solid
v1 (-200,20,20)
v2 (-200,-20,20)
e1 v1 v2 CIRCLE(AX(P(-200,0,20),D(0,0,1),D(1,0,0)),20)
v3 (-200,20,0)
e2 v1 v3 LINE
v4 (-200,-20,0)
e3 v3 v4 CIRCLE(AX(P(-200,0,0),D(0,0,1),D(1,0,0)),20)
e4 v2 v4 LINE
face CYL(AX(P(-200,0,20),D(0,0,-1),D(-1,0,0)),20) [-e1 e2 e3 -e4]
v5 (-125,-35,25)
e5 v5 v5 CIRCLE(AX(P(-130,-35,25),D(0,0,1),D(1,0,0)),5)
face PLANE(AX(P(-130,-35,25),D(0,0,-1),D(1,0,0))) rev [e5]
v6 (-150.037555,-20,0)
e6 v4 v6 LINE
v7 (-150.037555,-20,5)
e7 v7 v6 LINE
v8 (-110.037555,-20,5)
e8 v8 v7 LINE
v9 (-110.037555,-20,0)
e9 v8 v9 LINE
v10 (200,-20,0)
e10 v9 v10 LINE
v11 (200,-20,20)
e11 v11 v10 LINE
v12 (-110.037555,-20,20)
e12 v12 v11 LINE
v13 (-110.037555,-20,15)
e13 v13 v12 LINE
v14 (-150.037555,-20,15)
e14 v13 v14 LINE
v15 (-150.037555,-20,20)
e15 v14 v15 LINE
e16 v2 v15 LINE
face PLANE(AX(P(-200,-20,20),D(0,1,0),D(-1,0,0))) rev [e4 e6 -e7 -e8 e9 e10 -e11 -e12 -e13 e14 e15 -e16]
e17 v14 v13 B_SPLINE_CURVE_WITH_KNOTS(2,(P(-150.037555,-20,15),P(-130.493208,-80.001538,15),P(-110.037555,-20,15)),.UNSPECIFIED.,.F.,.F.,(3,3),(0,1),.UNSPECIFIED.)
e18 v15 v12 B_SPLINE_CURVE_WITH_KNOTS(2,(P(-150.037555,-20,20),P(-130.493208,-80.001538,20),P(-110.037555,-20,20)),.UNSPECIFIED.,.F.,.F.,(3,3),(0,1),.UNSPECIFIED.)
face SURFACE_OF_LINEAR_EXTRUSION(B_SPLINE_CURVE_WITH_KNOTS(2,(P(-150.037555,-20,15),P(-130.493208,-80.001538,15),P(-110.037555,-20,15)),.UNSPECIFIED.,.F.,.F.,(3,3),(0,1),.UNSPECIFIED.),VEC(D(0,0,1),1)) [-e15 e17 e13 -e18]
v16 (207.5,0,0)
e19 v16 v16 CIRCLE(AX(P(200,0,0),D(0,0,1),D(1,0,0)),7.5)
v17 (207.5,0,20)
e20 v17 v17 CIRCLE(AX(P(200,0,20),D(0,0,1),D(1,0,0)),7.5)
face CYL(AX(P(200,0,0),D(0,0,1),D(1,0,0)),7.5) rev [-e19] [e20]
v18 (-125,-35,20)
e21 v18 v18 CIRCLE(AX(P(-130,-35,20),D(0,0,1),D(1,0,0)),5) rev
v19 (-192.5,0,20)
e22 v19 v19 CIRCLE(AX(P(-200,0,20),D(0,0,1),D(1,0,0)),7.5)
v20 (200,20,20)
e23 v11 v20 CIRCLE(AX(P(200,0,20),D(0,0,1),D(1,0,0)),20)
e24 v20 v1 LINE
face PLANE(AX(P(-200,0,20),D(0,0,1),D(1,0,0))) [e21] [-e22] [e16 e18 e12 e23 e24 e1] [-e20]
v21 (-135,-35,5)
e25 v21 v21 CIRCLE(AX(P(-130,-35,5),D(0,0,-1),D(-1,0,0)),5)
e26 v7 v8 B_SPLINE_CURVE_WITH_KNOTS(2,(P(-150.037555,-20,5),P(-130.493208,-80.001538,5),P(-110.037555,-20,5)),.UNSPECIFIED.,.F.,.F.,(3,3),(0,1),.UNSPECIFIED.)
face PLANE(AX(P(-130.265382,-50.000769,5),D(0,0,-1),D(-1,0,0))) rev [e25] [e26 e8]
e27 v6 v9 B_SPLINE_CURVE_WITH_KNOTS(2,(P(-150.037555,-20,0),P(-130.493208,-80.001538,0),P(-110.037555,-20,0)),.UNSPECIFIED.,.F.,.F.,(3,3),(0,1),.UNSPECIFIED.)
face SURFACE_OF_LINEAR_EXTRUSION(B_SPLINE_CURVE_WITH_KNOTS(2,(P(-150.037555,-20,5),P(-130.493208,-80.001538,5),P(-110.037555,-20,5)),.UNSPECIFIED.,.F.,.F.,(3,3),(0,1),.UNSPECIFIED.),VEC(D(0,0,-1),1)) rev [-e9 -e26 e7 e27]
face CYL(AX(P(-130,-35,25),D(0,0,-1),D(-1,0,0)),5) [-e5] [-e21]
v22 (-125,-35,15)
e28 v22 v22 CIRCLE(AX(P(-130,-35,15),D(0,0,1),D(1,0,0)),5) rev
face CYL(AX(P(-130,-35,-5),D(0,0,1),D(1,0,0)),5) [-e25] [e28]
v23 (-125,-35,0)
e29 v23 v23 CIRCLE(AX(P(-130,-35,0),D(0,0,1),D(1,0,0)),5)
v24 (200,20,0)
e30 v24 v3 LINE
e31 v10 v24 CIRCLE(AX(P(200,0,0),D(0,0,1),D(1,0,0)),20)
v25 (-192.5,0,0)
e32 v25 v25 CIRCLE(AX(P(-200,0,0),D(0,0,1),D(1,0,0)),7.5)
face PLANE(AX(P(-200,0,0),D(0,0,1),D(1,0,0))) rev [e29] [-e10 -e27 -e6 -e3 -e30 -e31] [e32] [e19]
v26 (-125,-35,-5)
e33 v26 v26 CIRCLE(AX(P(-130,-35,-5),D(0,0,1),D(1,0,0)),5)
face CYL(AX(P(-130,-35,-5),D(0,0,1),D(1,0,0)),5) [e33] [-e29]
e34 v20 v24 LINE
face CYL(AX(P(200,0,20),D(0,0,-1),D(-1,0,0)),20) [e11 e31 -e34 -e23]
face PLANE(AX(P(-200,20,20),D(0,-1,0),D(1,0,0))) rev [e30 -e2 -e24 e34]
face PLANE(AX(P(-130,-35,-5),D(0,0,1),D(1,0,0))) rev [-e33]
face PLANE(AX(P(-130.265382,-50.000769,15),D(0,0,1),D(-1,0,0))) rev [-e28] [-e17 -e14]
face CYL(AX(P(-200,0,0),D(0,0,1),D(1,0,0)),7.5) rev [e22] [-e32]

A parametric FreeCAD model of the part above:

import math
import FreeCAD as App
import Part
import Sketcher
Q = App.Units.Quantity

doc = App.newDocument("Part")
body = doc.addObject("PartDesign::Body", "Body")

# Sketch on XY plane
sketch1 = doc.addObject("Sketcher::SketchObject", "Sketch")
body.addObject(sketch1)
sketch1.AttachmentSupport = (doc.XY_Plane, [""])
sketch1.MapMode = "FlatFace"
sketch1.addGeometry([
    Part.LineSegment(App.Vector(200, 20, 0), App.Vector(-200, 20, 0)),
    Part.ArcOfCircle(Part.Circle(App.Vector(-200, 0, 0), App.Vector(0, 0, 1), 20), math.radians(90), math.radians(270)),
    Part.LineSegment(App.Vector(-200, -20, 0), App.Vector(200, -20, 0)),
    Part.ArcOfCircle(Part.Circle(App.Vector(200, 0, 0), App.Vector(0, 0, 1), 20), math.radians(-90), math.radians(90)),
], False)
sketch1.addConstraint([
    Sketcher.Constraint("Tangent", 0, 2, 1, 1),
    Sketcher.Constraint("Tangent", 1, 2, 2, 1),
    Sketcher.Constraint("Tangent", 2, 2, 3, 1),
    Sketcher.Constraint("Tangent", 3, 2, 0, 1),
    Sketcher.Constraint("Horizontal", 0),
    Sketcher.Constraint("Horizontal", 2),
    Sketcher.Constraint("Symmetric", 1, 3, 3, 3, -1, 1),
    Sketcher.Constraint("Radius", 1, Q("20 mm")),
    Sketcher.Constraint("DistanceX", 0, 2, 0, 1, Q("400 mm")),
])
pad1 = doc.addObject("PartDesign::Pad", "Pad")
body.addObject(pad1)
pad1.Profile = sketch1
pad1.Length = 20

# Sketch on XY plane
sketch2 = doc.addObject("Sketcher::SketchObject", "Sketch001")
body.addObject(sketch2)
sketch2.AttachmentSupport = (doc.XY_Plane, [""])
sketch2.MapMode = "FlatFace"
sketch2.AttachmentOffset = App.Placement(App.Vector(0, 0, 20), App.Rotation())
sketch2.addGeometry([
    Part.Circle(App.Vector(-200, 0, 0), App.Vector(0, 0, 1), 8),
    Part.Circle(App.Vector(200, 0, 0), App.Vector(0, 0, 1), 8),
], False)
sketch2.addConstraint([
    Sketcher.Constraint("Equal", 0, 1),
    Sketcher.Constraint("Symmetric", 0, 3, 1, 3, -1, 1),
    Sketcher.Constraint("PointOnObject", 0, 3, -1),
    Sketcher.Constraint("Diameter", 0, Q("15 mm")),
    Sketcher.Constraint("DistanceX", 0, 3, -1, 1, Q("200 mm")),
])
pocket1 = doc.addObject("PartDesign::Pocket", "Pocket")
body.addObject(pocket1)
pocket1.Profile = sketch2
pocket1.Length = 20

# Sketch on XY plane
sketch3 = doc.addObject("Sketcher::SketchObject", "Sketch002")
body.addObject(sketch3)
sketch3.AttachmentSupport = (doc.XY_Plane, [""])
sketch3.MapMode = "FlatFace"
sketch3.addGeometry([
    Part.LineSegment(App.Vector(-110.037555, -20, 0), App.Vector(-150.037555, -20, 0)),
    Part.BSplineCurve([App.Vector(-150.037555, -20, 0), App.Vector(-130.493208, -80.001538, 0), App.Vector(-110.037555, -20, 0)], [3, 3], [0, 1], False, 2, [1, 1, 1], False),
], False)
sketch3.addConstraint([
    Sketcher.Constraint("Block", 1),
    Sketcher.Constraint("Coincident", 0, 1, 1, 2),
    Sketcher.Constraint("Coincident", 1, 1, 0, 2),
])
pad2 = doc.addObject("PartDesign::Pad", "Pad001")
body.addObject(pad2)
pad2.Profile = sketch3
pad2.Length = 5

# Sketch on XY plane
sketch4 = doc.addObject("Sketcher::SketchObject", "Sketch003")
body.addObject(sketch4)
sketch4.AttachmentSupport = (doc.XY_Plane, [""])
sketch4.MapMode = "FlatFace"
sketch4.AttachmentOffset = App.Placement(App.Vector(0, 0, -5), App.Rotation())
sketch4.addGeometry(Part.Circle(App.Vector(-130, -35, 0), App.Vector(0, 0, 1), 5), False)
sketch4.addConstraint([
    Sketcher.Constraint("Diameter", 0, Q("10 mm")),
    Sketcher.Constraint("DistanceX", 0, 3, -1, 1, Q("130 mm")),
    Sketcher.Constraint("DistanceY", 0, 3, -1, 1, Q("35 mm")),
])
pad3 = doc.addObject("PartDesign::Pad", "Pad002")
body.addObject(pad3)
pad3.Profile = sketch4
pad3.Length = 15
doc.recompute()

datumplane = doc.addObject("PartDesign::Plane", "DatumPlane")
body.addObject(datumplane)
datumplane.AttachmentSupport = (doc.XY_Plane, [""])
datumplane.MapMode = "FlatFace"
datumplane.AttachmentOffset = App.Placement(App.Vector(0, 0, 10), App.Rotation())
mirrored = doc.addObject("PartDesign::Mirrored", "Mirrored")
body.addObject(mirrored)
mirrored.Originals = [pad2, pad3]
mirrored.MirrorPlane = (datumplane, [""])
body.Tip = mirrored

doc.recompute()
